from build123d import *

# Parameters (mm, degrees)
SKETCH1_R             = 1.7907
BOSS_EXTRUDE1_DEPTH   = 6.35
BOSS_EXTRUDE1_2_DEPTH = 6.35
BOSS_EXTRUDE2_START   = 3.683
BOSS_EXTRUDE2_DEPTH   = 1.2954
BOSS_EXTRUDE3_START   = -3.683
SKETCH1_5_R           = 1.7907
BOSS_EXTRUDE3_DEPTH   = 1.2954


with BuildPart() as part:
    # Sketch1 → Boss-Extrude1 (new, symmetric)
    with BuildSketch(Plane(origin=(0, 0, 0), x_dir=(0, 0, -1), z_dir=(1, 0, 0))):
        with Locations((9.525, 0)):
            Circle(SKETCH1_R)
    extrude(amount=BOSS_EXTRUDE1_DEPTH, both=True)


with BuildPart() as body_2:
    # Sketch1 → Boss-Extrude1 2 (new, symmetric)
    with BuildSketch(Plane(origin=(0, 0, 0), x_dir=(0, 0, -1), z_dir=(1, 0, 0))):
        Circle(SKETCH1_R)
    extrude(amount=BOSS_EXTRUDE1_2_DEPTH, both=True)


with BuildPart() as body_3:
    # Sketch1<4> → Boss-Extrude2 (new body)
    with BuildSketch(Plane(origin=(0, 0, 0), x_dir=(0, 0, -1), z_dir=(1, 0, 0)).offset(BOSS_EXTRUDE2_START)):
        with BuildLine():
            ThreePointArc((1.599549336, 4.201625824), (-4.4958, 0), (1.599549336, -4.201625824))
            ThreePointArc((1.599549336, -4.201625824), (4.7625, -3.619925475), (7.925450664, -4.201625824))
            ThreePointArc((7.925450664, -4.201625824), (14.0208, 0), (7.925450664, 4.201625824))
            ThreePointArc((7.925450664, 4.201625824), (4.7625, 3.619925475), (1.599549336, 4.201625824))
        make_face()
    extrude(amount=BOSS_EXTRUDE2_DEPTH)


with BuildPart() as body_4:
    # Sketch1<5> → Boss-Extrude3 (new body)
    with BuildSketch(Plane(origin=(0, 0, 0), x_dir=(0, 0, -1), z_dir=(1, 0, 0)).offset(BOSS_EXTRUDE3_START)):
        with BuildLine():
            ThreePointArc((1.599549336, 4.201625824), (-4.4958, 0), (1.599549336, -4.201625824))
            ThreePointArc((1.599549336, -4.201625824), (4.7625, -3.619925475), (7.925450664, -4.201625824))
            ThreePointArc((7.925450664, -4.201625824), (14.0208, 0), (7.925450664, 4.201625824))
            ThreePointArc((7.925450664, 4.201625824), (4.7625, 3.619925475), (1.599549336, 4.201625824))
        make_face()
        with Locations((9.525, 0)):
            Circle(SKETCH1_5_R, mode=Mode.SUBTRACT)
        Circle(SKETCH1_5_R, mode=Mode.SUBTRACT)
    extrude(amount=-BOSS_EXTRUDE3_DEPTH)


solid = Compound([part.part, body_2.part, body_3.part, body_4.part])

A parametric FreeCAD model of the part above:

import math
import FreeCAD as App
import Part
import Sketcher

V = App.Vector
Q = App.Units.Quantity

doc = App.newDocument("Part")
body = doc.addObject("PartDesign::Body", "Body")

# Sketch on YZ plane
sketch1 = body.newObject("Sketcher::SketchObject", "Sketch")
sketch1.AttachmentSupport = (doc.getObject("YZ_Plane"), [""])
sketch1.MapMode = "FlatFace"
sketch1.addGeometry(Part.Circle(V(0, -9.5, 0), V(0, 0, 1), 1.8), False)
sketch1.addConstraint(Sketcher.Constraint("PointOnObject", 0, 3, -2))
sketch1.addConstraint(Sketcher.Constraint("Diameter", 0, Q("0.141 in")))
sketch1.addConstraint(Sketcher.Constraint("DistanceY", 0, 3, -1, 1, Q("0.375 in")))
pad1 = body.newObject("PartDesign::Pad", "Pad")
pad1.Profile = sketch1
pad1.Length = Q("0.5 in")
pad1.Midplane = True
body2 = doc.addObject("PartDesign::Body", "Body001")

# Sketch on YZ plane
sketch2 = body2.newObject("Sketcher::SketchObject", "Sketch001")
sketch2.AttachmentSupport = (doc.getObject("YZ_Plane001"), [""])
sketch2.MapMode = "FlatFace"
sketch2.addGeometry(Part.Circle(V(0, 0, 0), V(0, 0, 1), 1.8), False)
sketch2.addConstraint(Sketcher.Constraint("Coincident", 0, 3, -1, 1))
sketch2.addConstraint(Sketcher.Constraint("Diameter", 0, Q("0.141 in")))
pad2 = body2.newObject("PartDesign::Pad", "Pad001")
pad2.Profile = sketch2
pad2.Length = Q("0.5 in")
pad2.Midplane = True
body3 = doc.addObject("PartDesign::Body", "Body002")

# Sketch on YZ plane
sketch3 = body3.newObject("Sketcher::SketchObject", "Sketch002")
sketch3.AttachmentSupport = (doc.getObject("YZ_Plane002"), [""])
sketch3.MapMode = "FlatFace"
sketch3.AttachmentOffset = App.Placement(V(0, 0, 0.145 * 25.4), App.Rotation())
sketch3.addGeometry(Part.ArcOfCircle(Part.Circle(V(0, 0, 0), V(0, 0, 1), 4.5), math.radians(-21), math.radians(201)), False)
sketch3.addGeometry(Part.ArcOfCircle(Part.Circle(V(-12.5, -4.8, 0), V(0, 0, 1), 8.9), math.radians(-21), math.radians(21)), False)
sketch3.addGeometry(Part.ArcOfCircle(Part.Circle(V(0, -9.5, 0), V(0, 0, 1), 4.5), math.radians(159), math.radians(381)), False)
sketch3.addGeometry(Part.ArcOfCircle(Part.Circle(V(12.5, -4.8, 0), V(0, 0, 1), 8.9), math.radians(159), math.radians(201)), False)
sketch3.addConstraint(Sketcher.Constraint("Tangent", 0, 2, 1, 2))
sketch3.addConstraint(Sketcher.Constraint("Tangent", 1, 1, 2, 1))
sketch3.addConstraint(Sketcher.Constraint("Tangent", 2, 2, 3, 2))
sketch3.addConstraint(Sketcher.Constraint("Tangent", 3, 1, 0, 1))
sketch3.addConstraint(Sketcher.Constraint("Coincident", 0, 3, -1, 1))
sketch3.addConstraint(Sketcher.Constraint("Equal", 0, 2))
sketch3.addConstraint(Sketcher.Constraint("Equal", 1, 3))
sketch3.addConstraint(Sketcher.Constraint("PointOnObject", 2, 3, -2))
sketch3.addConstraint(Sketcher.Constraint("Radius", 1, Q("0.35 in")))
sketch3.addConstraint(Sketcher.Constraint("Radius", 0, Q("0.177 in")))
sketch3.addConstraint(Sketcher.Constraint("DistanceY", 1, 3, -1, 1, Q("0.1875 in")))
pad3 = body3.newObject("PartDesign::Pad", "Pad002")
pad3.Profile = sketch3
pad3.Length = Q("0.051 in")
body4 = doc.addObject("PartDesign::Body", "Body003")

# Sketch on YZ plane
sketch4 = body4.newObject("Sketcher::SketchObject", "Sketch003")
sketch4.AttachmentSupport = (doc.getObject("YZ_Plane003"), [""])
sketch4.MapMode = "FlatFace"
sketch4.AttachmentOffset = App.Placement(V(0, 0, -0.145 * 25.4), App.Rotation())
sketch4.addGeometry(Part.ArcOfCircle(Part.Circle(V(0, 0, 0), V(0, 0, 1), 4.5), math.radians(-21), math.radians(201)), False)
sketch4.addGeometry(Part.ArcOfCircle(Part.Circle(V(-12.5, -4.8, 0), V(0, 0, 1), 8.9), math.radians(-21), math.radians(21)), False)
sketch4.addGeometry(Part.ArcOfCircle(Part.Circle(V(0, -9.5, 0), V(0, 0, 1), 4.5), math.radians(159), math.radians(381)), False)
sketch4.addGeometry(Part.ArcOfCircle(Part.Circle(V(12.5, -4.8, 0), V(0, 0, 1), 8.9), math.radians(159), math.radians(201)), False)
sketch4.addGeometry(Part.Circle(V(0, 0, 0), V(0, 0, 1), 1.8), False)
sketch4.addGeometry(Part.Circle(V(0, -9.5, 0), V(0, 0, 1), 1.8), False)
sketch4.addConstraint(Sketcher.Constraint("Tangent", 0, 2, 1, 2))
sketch4.addConstraint(Sketcher.Constraint("Tangent", 1, 1, 2, 1))
sketch4.addConstraint(Sketcher.Constraint("Tangent", 2, 2, 3, 2))
sketch4.addConstraint(Sketcher.Constraint("Tangent", 3, 1, 0, 1))
sketch4.addConstraint(Sketcher.Constraint("Coincident", 0, 3, -1, 1))
sketch4.addConstraint(Sketcher.Constraint("Coincident", 4, 3, -1, 1))
sketch4.addConstraint(Sketcher.Constraint("Coincident", 5, 3, 2, 3))
sketch4.addConstraint(Sketcher.Constraint("Equal", 0, 2))
sketch4.addConstraint(Sketcher.Constraint("Equal", 1, 3))
sketch4.addConstraint(Sketcher.Constraint("Equal", 4, 5))
sketch4.addConstraint(Sketcher.Constraint("PointOnObject", 2, 3, -2))
sketch4.addConstraint(Sketcher.Constraint("Radius", 1, Q("0.35 in")))
sketch4.addConstraint(Sketcher.Constraint("Diameter", 4, Q("0.141 in")))
sketch4.addConstraint(Sketcher.Constraint("Radius", 0, Q("0.177 in")))
sketch4.addConstraint(Sketcher.Constraint("DistanceY", 1, 3, -1, 1, Q("0.1875 in")))
pad4 = body4.newObject("PartDesign::Pad", "Pad003")
pad4.Profile = sketch4
pad4.Length = Q("0.051 in")
pad4.Reversed = True

doc.recompute()
